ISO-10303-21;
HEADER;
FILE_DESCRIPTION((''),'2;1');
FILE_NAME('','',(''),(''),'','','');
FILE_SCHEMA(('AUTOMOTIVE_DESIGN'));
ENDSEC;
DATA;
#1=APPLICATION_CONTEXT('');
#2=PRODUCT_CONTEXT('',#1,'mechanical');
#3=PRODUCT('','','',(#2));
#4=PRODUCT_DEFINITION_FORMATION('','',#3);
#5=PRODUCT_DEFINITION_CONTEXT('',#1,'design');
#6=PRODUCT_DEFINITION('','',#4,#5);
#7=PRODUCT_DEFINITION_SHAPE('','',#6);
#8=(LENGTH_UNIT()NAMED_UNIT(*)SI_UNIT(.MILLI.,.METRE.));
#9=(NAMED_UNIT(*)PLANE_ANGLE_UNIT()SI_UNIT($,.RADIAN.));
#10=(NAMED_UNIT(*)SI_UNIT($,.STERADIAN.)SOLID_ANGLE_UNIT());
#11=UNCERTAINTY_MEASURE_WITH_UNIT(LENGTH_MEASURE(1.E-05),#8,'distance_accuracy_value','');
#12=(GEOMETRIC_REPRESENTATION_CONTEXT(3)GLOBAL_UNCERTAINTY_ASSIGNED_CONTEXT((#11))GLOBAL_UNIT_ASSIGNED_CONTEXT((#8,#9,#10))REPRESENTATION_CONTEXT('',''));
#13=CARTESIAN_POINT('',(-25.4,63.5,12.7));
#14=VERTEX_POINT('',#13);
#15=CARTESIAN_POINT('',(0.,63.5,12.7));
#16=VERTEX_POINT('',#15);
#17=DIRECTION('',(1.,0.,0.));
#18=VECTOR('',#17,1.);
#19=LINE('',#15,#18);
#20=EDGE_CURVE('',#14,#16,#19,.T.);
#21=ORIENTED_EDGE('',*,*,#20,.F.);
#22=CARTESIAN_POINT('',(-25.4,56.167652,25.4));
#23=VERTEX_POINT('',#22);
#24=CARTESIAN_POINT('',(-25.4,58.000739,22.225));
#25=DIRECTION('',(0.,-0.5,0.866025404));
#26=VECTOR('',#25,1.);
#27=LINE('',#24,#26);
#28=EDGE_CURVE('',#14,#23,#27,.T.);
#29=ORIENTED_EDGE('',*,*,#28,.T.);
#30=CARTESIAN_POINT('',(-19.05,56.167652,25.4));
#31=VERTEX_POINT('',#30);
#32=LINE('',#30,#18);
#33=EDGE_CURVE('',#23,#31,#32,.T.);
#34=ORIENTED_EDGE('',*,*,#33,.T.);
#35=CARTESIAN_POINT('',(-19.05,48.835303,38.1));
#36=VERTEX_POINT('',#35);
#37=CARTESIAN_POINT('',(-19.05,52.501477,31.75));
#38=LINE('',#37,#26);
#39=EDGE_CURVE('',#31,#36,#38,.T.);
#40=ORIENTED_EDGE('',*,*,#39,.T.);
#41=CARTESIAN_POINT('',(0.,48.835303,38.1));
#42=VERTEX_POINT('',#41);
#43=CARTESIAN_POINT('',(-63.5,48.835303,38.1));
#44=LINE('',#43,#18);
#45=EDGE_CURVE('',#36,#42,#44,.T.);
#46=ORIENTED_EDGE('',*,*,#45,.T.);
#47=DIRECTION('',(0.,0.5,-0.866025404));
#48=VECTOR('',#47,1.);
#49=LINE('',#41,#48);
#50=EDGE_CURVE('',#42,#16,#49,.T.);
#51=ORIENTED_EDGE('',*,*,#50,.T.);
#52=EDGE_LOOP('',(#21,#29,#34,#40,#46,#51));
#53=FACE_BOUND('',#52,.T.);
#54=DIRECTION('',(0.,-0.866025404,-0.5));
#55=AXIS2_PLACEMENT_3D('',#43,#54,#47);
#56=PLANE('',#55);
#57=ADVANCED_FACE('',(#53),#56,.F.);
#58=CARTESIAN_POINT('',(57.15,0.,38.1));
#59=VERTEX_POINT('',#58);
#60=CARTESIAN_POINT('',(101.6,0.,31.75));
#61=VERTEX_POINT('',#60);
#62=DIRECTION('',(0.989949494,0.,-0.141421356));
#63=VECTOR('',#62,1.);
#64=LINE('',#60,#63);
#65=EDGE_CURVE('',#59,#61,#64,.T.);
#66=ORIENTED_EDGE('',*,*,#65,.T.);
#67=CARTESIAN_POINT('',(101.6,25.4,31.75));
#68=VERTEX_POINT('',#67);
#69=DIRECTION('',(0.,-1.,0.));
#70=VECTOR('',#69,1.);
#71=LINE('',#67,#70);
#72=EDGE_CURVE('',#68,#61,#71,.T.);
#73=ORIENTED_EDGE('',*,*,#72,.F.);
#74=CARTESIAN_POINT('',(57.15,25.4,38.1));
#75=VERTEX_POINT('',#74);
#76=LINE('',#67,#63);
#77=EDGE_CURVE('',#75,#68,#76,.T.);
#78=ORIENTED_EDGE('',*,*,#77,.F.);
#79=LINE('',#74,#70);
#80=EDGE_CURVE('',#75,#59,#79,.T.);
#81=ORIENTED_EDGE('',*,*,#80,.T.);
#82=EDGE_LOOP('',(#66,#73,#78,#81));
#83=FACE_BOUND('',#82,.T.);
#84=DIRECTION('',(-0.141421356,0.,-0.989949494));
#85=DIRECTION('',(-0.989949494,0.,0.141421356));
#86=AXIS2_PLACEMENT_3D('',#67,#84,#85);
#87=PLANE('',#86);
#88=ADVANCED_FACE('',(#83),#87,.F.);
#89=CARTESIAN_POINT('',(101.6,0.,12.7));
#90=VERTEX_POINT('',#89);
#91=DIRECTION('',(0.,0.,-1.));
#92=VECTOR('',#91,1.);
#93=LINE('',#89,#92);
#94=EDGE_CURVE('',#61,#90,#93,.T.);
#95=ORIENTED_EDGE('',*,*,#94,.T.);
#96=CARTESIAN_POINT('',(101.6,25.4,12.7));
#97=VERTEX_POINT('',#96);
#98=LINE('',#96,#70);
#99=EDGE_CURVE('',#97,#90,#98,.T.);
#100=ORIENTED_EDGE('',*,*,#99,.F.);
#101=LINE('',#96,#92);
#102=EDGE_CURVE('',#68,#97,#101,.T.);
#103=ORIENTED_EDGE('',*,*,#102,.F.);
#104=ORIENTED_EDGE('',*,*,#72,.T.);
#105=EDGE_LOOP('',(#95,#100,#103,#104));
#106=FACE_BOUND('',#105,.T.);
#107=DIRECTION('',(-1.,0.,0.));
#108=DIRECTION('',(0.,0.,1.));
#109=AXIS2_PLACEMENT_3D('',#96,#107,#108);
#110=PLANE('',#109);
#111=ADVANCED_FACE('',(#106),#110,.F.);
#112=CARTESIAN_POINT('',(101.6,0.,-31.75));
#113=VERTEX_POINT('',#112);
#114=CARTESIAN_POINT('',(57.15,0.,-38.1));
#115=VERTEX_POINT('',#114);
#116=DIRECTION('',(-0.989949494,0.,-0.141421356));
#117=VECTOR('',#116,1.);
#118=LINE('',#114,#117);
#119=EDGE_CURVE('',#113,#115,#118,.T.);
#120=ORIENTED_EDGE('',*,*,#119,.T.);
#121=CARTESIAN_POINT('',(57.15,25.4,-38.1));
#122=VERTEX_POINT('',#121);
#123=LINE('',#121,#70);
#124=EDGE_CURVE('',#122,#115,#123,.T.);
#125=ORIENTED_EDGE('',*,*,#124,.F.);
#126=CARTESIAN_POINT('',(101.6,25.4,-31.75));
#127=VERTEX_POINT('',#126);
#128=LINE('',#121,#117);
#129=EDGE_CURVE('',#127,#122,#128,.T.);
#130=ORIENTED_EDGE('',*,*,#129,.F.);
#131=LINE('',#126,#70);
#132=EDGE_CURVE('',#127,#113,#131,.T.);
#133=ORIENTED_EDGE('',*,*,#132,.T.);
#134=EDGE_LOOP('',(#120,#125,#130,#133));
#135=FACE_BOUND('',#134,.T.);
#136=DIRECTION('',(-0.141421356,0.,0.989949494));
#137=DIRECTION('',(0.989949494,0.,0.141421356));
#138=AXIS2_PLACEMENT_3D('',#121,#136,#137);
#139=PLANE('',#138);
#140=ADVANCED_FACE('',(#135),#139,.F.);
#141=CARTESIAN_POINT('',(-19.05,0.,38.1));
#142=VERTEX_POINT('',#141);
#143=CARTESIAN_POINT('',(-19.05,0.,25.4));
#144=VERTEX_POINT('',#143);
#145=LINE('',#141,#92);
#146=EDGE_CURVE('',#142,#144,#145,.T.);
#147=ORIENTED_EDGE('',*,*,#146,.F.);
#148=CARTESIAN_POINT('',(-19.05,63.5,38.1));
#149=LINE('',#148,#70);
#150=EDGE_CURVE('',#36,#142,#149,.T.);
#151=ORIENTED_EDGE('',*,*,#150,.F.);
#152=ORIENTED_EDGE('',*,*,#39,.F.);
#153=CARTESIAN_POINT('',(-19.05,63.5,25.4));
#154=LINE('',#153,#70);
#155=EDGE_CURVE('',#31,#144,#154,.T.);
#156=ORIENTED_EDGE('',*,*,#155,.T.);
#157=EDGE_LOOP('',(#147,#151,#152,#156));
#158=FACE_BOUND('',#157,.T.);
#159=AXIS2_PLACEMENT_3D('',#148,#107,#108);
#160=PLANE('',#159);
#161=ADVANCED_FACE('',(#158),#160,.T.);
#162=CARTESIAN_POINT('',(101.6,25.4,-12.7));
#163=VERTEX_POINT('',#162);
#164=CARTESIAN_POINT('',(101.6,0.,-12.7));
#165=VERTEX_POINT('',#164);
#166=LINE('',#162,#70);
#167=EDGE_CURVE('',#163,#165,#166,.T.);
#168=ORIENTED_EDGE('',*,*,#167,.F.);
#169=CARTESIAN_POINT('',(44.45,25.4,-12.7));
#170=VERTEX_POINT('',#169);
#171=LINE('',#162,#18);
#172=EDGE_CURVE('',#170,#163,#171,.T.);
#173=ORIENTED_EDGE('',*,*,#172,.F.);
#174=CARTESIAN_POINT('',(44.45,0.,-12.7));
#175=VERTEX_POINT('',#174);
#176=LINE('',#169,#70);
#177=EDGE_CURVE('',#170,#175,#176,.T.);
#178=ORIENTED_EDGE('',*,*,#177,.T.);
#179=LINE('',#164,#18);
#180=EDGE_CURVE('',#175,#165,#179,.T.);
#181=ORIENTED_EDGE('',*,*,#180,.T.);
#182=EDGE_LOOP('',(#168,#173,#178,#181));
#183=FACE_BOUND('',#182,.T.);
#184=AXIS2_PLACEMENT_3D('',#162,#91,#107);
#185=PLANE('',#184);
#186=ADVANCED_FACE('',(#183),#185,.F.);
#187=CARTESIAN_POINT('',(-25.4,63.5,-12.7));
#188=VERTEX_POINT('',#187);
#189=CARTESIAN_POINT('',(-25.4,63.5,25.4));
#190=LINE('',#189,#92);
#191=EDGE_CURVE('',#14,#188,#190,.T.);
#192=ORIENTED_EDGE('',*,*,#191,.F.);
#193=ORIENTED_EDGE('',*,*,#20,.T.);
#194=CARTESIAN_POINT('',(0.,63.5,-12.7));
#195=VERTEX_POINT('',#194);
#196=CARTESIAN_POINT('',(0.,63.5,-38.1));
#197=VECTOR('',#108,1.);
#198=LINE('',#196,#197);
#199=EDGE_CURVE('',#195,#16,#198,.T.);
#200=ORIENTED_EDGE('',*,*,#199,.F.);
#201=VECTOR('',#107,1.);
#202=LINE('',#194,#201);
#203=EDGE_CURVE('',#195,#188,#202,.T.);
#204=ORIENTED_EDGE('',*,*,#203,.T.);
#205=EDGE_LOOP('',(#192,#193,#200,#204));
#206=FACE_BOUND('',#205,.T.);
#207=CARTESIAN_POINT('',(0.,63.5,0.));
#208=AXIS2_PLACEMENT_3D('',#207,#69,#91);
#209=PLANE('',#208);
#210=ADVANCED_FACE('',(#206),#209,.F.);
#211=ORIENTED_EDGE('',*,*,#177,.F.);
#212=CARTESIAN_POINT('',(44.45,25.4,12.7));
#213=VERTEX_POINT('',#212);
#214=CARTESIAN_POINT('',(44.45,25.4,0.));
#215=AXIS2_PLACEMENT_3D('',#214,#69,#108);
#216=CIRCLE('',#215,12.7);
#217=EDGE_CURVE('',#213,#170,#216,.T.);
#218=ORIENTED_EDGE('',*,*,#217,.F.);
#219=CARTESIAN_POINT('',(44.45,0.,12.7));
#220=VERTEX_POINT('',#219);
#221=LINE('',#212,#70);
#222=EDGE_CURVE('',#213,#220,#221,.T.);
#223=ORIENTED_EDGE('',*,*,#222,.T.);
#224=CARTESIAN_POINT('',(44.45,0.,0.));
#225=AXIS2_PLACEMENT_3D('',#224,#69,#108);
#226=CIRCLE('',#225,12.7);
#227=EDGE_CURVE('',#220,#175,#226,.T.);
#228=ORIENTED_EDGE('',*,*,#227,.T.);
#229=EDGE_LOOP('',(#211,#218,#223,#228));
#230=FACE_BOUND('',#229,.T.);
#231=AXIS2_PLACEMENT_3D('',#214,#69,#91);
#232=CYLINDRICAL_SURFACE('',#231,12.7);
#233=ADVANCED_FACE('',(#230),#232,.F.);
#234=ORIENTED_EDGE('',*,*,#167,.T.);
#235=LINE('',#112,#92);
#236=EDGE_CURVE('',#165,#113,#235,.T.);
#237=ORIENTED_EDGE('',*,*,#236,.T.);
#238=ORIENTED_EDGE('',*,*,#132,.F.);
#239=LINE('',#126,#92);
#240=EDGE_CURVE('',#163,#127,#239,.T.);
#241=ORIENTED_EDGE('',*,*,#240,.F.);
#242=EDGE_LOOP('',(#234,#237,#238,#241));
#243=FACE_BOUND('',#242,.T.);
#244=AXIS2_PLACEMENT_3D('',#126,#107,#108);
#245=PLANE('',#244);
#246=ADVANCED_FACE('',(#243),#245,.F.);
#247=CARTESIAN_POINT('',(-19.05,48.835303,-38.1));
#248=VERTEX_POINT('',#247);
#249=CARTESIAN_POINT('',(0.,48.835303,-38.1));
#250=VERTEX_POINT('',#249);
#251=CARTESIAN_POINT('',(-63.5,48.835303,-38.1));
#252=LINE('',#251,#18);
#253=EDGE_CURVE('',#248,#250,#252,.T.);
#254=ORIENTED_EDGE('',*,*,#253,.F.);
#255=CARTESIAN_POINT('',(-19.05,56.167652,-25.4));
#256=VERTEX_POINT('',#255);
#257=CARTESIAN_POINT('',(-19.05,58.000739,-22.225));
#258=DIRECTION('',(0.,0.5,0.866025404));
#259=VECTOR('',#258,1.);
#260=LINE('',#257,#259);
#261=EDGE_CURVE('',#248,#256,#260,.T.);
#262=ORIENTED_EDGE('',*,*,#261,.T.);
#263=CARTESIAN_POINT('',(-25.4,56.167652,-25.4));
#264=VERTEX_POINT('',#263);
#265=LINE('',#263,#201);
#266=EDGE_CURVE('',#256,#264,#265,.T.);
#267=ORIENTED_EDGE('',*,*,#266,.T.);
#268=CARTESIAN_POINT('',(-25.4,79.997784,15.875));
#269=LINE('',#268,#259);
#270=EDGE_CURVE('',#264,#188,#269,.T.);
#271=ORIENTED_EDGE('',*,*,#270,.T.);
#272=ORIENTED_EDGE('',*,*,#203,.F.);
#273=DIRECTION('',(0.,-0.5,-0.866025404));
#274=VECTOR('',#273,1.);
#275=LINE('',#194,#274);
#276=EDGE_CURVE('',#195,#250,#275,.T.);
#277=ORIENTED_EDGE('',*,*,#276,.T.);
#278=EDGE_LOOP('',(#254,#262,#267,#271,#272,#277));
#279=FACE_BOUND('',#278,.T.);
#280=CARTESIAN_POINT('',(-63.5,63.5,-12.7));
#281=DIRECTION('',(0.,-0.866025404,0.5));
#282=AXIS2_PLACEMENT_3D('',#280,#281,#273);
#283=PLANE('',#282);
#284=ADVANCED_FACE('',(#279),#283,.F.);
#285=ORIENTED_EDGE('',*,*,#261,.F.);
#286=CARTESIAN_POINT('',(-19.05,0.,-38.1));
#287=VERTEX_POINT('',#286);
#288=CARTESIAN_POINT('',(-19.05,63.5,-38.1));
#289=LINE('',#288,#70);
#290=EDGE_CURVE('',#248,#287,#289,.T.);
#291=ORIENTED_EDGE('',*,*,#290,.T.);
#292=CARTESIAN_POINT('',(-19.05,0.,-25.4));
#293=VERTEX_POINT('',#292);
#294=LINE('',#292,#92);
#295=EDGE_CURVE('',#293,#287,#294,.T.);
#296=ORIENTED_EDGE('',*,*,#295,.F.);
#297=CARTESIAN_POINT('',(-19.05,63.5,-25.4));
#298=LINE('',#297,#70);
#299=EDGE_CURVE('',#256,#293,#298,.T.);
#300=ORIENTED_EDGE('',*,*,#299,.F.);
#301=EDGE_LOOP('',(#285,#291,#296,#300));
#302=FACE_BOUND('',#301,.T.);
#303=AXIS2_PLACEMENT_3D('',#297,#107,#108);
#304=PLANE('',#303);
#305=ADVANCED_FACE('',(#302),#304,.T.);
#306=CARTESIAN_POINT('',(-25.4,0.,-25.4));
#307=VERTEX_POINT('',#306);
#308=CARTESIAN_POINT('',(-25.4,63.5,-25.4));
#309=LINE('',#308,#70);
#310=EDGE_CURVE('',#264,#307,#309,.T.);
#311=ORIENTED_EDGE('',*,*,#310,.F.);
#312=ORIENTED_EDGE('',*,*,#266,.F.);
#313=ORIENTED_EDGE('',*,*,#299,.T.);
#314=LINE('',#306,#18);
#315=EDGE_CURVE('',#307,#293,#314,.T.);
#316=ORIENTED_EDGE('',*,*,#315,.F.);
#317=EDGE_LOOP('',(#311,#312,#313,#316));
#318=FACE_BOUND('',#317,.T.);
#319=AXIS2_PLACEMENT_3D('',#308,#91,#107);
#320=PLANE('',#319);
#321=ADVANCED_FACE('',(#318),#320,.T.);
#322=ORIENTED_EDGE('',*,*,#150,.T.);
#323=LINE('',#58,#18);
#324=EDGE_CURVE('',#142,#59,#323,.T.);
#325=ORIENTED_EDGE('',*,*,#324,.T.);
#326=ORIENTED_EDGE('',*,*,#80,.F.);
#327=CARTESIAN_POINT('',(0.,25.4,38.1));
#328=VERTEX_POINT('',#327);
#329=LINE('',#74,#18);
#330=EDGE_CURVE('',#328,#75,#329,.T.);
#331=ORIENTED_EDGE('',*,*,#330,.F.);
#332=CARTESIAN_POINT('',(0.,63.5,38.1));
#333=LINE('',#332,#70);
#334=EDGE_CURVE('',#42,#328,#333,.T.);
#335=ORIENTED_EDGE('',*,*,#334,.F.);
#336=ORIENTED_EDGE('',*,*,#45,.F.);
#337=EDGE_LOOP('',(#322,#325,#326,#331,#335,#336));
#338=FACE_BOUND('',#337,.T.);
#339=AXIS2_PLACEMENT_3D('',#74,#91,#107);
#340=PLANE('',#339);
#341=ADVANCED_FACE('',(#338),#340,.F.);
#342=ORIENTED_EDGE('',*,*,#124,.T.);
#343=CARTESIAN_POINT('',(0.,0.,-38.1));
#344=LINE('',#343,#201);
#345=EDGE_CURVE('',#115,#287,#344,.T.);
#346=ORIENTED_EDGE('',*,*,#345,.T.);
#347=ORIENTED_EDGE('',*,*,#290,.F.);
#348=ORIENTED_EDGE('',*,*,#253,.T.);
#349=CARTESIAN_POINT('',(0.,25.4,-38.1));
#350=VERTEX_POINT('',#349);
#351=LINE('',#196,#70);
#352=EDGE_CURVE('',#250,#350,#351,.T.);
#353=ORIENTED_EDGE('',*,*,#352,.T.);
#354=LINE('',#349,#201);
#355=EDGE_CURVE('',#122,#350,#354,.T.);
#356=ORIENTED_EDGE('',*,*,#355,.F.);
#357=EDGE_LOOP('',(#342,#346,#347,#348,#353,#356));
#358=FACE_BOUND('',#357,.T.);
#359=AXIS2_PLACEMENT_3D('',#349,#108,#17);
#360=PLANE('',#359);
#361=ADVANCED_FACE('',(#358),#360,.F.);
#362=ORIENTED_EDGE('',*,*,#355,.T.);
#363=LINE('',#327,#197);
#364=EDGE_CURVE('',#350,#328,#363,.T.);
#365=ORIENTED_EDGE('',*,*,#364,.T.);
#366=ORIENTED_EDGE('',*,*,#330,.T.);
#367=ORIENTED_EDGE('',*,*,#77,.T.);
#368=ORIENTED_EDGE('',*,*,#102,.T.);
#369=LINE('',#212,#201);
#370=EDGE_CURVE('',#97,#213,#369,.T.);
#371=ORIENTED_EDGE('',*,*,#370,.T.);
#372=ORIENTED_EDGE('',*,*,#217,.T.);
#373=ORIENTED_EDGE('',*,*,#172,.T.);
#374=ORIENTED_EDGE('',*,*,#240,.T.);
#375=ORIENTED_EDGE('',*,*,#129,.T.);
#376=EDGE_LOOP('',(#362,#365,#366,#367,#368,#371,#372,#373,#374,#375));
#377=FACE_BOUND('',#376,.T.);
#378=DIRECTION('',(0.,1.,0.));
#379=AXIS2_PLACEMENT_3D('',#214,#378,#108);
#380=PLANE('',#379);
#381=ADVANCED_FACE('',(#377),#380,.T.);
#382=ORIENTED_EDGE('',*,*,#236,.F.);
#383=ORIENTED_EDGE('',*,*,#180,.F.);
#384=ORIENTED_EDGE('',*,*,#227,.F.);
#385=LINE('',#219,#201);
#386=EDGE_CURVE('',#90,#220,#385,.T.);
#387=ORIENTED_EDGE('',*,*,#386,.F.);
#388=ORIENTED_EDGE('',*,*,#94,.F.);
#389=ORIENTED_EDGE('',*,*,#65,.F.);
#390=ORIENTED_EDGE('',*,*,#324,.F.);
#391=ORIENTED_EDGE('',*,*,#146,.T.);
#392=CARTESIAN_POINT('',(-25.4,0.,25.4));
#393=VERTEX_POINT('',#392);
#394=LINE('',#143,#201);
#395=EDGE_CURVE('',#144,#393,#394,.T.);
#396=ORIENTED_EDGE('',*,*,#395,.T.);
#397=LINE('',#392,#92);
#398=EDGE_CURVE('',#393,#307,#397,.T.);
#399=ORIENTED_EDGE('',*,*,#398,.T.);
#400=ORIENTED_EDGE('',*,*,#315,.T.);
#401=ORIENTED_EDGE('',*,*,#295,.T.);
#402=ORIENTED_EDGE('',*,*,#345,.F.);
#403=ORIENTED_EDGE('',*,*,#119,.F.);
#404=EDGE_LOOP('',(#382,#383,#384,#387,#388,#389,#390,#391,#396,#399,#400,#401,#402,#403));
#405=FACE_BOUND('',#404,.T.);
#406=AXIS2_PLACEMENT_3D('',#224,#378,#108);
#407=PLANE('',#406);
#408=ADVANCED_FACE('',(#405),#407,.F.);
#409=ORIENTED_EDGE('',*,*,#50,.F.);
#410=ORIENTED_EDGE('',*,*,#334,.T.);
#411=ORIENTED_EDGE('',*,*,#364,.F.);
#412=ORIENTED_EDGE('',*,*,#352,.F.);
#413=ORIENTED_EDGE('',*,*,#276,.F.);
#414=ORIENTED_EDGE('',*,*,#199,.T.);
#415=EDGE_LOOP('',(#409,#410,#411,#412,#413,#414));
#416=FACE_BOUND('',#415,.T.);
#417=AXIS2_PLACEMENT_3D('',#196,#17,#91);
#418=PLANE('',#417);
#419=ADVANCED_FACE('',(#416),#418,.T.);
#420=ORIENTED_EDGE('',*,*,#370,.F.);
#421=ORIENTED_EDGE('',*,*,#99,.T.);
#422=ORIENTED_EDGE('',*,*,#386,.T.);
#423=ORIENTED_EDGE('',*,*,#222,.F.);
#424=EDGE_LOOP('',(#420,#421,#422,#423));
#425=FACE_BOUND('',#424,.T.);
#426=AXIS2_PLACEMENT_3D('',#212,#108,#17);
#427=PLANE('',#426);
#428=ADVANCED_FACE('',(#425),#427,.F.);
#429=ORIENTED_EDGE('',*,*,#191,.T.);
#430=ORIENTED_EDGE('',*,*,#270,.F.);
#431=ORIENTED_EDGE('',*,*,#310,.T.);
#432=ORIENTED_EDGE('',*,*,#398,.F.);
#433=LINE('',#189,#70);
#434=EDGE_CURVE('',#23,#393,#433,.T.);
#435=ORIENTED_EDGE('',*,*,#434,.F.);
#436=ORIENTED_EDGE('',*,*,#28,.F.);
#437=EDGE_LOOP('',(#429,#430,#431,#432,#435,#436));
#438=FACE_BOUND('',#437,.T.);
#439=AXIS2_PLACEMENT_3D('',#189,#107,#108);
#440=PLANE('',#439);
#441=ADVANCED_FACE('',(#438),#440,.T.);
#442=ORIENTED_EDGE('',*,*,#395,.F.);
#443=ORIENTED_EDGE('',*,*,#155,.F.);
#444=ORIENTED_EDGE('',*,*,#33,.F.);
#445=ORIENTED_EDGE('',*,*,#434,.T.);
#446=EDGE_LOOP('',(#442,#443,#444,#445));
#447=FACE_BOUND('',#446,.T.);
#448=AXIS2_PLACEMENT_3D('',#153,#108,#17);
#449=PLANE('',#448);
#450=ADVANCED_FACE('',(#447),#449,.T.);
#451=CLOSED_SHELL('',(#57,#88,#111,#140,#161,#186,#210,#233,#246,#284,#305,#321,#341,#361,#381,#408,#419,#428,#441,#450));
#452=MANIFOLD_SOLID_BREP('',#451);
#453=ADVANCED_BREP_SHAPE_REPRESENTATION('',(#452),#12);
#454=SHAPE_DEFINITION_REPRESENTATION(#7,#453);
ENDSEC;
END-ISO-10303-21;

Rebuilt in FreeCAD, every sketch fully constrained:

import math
import FreeCAD as App
import Part
import Sketcher
from FreeCAD import Vector
Q = App.Units.Quantity


def add_polygon(sketch, points):
    """Adds a closed chain of lines whose ends are joined by coincident constraints."""
    first, n = sketch.GeometryCount, len(points)
    for a, b in zip(points, points[1:] + points[:1]):
        sketch.addGeometry(Part.LineSegment(App.Vector(*a, 0), App.Vector(*b, 0)), False)
    for i in range(n):
        sketch.addConstraint(Sketcher.Constraint("Coincident", first + i, 2, first + (i + 1) % n, 1))

doc = App.newDocument("Part")
body = doc.addObject("PartDesign::Body", "Body")

sketch1 = doc.addObject("Sketcher::SketchObject", "Sketch")
body.addObject(sketch1)
sketch1.AttachmentSupport = (doc.XZ_Plane, [""])
sketch1.MapMode = "FlatFace"
sketch1.addGeometry(Part.LineSegment(Vector(57, -38, 0), Vector(0, -38, 0)), False)
sketch1.addGeometry(Part.LineSegment(Vector(0, -38, 0), Vector(0, 38, 0)), False)
sketch1.addGeometry(Part.LineSegment(Vector(0, 38, 0), Vector(57, 38, 0)), False)
sketch1.addGeometry(Part.LineSegment(Vector(57, 38, 0), Vector(102, 32, 0)), False)
sketch1.addGeometry(Part.LineSegment(Vector(102, 32, 0), Vector(102, 13, 0)), False)
sketch1.addGeometry(Part.LineSegment(Vector(102, 13, 0), Vector(44, 13, 0)), False)
sketch1.addGeometry(Part.ArcOfCircle(Part.Circle(Vector(44, 0, 0), Vector(0, 0, 1), 13), math.radians(90), math.radians(270)), False)
sketch1.addGeometry(Part.LineSegment(Vector(44, -13, 0), Vector(102, -13, 0)), False)
sketch1.addGeometry(Part.LineSegment(Vector(102, -13, 0), Vector(102, -32, 0)), False)
sketch1.addGeometry(Part.LineSegment(Vector(102, -32, 0), Vector(57, -38, 0)), False)
sketch1.addConstraint(Sketcher.Constraint("Coincident", 0, 2, 1, 1))
sketch1.addConstraint(Sketcher.Constraint("Coincident", 1, 2, 2, 1))
sketch1.addConstraint(Sketcher.Constraint("Coincident", 2, 2, 3, 1))
sketch1.addConstraint(Sketcher.Constraint("Coincident", 3, 2, 4, 1))
sketch1.addConstraint(Sketcher.Constraint("Coincident", 4, 2, 5, 1))
sketch1.addConstraint(Sketcher.Constraint("Tangent", 5, 2, 6, 1))
sketch1.addConstraint(Sketcher.Constraint("Tangent", 6, 2, 7, 1))
sketch1.addConstraint(Sketcher.Constraint("Coincident", 7, 2, 8, 1))
sketch1.addConstraint(Sketcher.Constraint("Coincident", 8, 2, 9, 1))
sketch1.addConstraint(Sketcher.Constraint("Coincident", 9, 2, 0, 1))
sketch1.addConstraint(Sketcher.Constraint("Horizontal", 0))
sketch1.addConstraint(Sketcher.Constraint("Vertical", 1))
sketch1.addConstraint(Sketcher.Constraint("Horizontal", 2))
sketch1.addConstraint(Sketcher.Constraint("Vertical", 4))
sketch1.addConstraint(Sketcher.Constraint("Horizontal", 5))
sketch1.addConstraint(Sketcher.Constraint("Horizontal", 7))
sketch1.addConstraint(Sketcher.Constraint("Vertical", 8))
sketch1.addConstraint(Sketcher.Constraint("Symmetric", 0, 2, 1, 2, -1, 1))
sketch1.addConstraint(Sketcher.Constraint("Symmetric", 4, 2, 7, 2, -1))
sketch1.addConstraint(Sketcher.Constraint("Vertical", 2, 2, 9, 2))
sketch1.addConstraint(Sketcher.Constraint("Equal", 2, 5))
sketch1.addConstraint(Sketcher.Constraint("Equal", 4, 8))
sketch1.addConstraint(Sketcher.Constraint("Radius", 6, Q("0.5 in")))
sketch1.addConstraint(Sketcher.Constraint("DistanceY", 1, 1, 1, 2, Q("3 in")))
sketch1.addConstraint(Sketcher.Constraint("DistanceX", -1, 1, 3, 2, Q("4 in")))
sketch1.addConstraint(Sketcher.Constraint("DistanceX", 0, 2, 0, 1, Q("2.25 in")))
sketch1.addConstraint(Sketcher.Constraint("DistanceY", 4, 2, 4, 1, Q("0.75 in")))
pad1 = doc.addObject("PartDesign::Pad", "Pad")
body.addObject(pad1)
pad1.Profile = sketch1
pad1.Length = Q("1 in")
pad1.Reversed = True

sketch2 = doc.addObject("Sketcher::SketchObject", "Sketch001")
body.addObject(sketch2)
sketch2.AttachmentSupport = (doc.XZ_Plane, [""])
sketch2.MapMode = "FlatFace"
add_polygon(sketch2, [(0, -38), (0, 38), (-19, 38), (-19, 25), (-25, 25), (-25, -25), (-19, -25), (-19, -38)])
sketch2.addConstraint(Sketcher.Constraint("Vertical", 0))
sketch2.addConstraint(Sketcher.Constraint("Horizontal", 1))
sketch2.addConstraint(Sketcher.Constraint("Vertical", 2))
sketch2.addConstraint(Sketcher.Constraint("Horizontal", 3))
sketch2.addConstraint(Sketcher.Constraint("Vertical", 4))
sketch2.addConstraint(Sketcher.Constraint("Horizontal", 5))
sketch2.addConstraint(Sketcher.Constraint("Vertical", 6))
sketch2.addConstraint(Sketcher.Constraint("Horizontal", 7))
sketch2.addConstraint(Sketcher.Constraint("Symmetric", 0, 2, 7, 2, -1, 1))
sketch2.addConstraint(Sketcher.Constraint("Symmetric", 2, 2, 5, 2, -1))
sketch2.addConstraint(Sketcher.Constraint("DistanceY", 0, 1, 0, 2, Q("3 in")))
sketch2.addConstraint(Sketcher.Constraint("DistanceY", 4, 2, 4, 1, Q("2 in")))
sketch2.addConstraint(Sketcher.Constraint("DistanceX", 3, 2, -1, 1, Q("1 in")))
sketch2.addConstraint(Sketcher.Constraint("DistanceX", 1, 2, 1, 1, Q("0.75 in")))
pad2 = doc.addObject("PartDesign::Pad", "Pad001")
body.addObject(pad2)
pad2.Profile = sketch2
pad2.Length = Q("2.5 in")
pad2.Reversed = True

sketch3 = doc.addObject("Sketcher::SketchObject", "Sketch002")
body.addObject(sketch3)
sketch3.AttachmentSupport = (doc.YZ_Plane, [""])
sketch3.MapMode = "FlatFace"
add_polygon(sketch3, [(64, 38), (49, 38), (64, 13)])
add_polygon(sketch3, [(64, -38), (64, -13), (49, -38)])
sketch3.addConstraint(Sketcher.Constraint("Horizontal", 0))
sketch3.addConstraint(Sketcher.Constraint("Vertical", 2))
sketch3.addConstraint(Sketcher.Constraint("Vertical", 3))
sketch3.addConstraint(Sketcher.Constraint("Horizontal", 5))
sketch3.addConstraint(Sketcher.Constraint("Symmetric", 1, 2, 3, 2, -1))
sketch3.addConstraint(Sketcher.Constraint("Symmetric", 0, 2, 4, 2, -1))
sketch3.addConstraint(Sketcher.Constraint("DistanceY", 2, 1, 2, 2, Q("1 in")))
sketch3.addConstraint(Sketcher.Constraint("Angle", 1, Q("-60 deg")))
sketch3.addConstraint(Sketcher.Constraint("DistanceY", 3, 2, 1, 2, Q("1 in")))
sketch3.addConstraint(Sketcher.Constraint("DistanceX", -1, 1, 1, 2, Q("2.5 in")))
pocket1 = doc.addObject("PartDesign::Pocket", "Pocket")
body.addObject(pocket1)
pocket1.Profile = sketch3
pocket1.Length = Q("2.5 in")

doc.recompute()
